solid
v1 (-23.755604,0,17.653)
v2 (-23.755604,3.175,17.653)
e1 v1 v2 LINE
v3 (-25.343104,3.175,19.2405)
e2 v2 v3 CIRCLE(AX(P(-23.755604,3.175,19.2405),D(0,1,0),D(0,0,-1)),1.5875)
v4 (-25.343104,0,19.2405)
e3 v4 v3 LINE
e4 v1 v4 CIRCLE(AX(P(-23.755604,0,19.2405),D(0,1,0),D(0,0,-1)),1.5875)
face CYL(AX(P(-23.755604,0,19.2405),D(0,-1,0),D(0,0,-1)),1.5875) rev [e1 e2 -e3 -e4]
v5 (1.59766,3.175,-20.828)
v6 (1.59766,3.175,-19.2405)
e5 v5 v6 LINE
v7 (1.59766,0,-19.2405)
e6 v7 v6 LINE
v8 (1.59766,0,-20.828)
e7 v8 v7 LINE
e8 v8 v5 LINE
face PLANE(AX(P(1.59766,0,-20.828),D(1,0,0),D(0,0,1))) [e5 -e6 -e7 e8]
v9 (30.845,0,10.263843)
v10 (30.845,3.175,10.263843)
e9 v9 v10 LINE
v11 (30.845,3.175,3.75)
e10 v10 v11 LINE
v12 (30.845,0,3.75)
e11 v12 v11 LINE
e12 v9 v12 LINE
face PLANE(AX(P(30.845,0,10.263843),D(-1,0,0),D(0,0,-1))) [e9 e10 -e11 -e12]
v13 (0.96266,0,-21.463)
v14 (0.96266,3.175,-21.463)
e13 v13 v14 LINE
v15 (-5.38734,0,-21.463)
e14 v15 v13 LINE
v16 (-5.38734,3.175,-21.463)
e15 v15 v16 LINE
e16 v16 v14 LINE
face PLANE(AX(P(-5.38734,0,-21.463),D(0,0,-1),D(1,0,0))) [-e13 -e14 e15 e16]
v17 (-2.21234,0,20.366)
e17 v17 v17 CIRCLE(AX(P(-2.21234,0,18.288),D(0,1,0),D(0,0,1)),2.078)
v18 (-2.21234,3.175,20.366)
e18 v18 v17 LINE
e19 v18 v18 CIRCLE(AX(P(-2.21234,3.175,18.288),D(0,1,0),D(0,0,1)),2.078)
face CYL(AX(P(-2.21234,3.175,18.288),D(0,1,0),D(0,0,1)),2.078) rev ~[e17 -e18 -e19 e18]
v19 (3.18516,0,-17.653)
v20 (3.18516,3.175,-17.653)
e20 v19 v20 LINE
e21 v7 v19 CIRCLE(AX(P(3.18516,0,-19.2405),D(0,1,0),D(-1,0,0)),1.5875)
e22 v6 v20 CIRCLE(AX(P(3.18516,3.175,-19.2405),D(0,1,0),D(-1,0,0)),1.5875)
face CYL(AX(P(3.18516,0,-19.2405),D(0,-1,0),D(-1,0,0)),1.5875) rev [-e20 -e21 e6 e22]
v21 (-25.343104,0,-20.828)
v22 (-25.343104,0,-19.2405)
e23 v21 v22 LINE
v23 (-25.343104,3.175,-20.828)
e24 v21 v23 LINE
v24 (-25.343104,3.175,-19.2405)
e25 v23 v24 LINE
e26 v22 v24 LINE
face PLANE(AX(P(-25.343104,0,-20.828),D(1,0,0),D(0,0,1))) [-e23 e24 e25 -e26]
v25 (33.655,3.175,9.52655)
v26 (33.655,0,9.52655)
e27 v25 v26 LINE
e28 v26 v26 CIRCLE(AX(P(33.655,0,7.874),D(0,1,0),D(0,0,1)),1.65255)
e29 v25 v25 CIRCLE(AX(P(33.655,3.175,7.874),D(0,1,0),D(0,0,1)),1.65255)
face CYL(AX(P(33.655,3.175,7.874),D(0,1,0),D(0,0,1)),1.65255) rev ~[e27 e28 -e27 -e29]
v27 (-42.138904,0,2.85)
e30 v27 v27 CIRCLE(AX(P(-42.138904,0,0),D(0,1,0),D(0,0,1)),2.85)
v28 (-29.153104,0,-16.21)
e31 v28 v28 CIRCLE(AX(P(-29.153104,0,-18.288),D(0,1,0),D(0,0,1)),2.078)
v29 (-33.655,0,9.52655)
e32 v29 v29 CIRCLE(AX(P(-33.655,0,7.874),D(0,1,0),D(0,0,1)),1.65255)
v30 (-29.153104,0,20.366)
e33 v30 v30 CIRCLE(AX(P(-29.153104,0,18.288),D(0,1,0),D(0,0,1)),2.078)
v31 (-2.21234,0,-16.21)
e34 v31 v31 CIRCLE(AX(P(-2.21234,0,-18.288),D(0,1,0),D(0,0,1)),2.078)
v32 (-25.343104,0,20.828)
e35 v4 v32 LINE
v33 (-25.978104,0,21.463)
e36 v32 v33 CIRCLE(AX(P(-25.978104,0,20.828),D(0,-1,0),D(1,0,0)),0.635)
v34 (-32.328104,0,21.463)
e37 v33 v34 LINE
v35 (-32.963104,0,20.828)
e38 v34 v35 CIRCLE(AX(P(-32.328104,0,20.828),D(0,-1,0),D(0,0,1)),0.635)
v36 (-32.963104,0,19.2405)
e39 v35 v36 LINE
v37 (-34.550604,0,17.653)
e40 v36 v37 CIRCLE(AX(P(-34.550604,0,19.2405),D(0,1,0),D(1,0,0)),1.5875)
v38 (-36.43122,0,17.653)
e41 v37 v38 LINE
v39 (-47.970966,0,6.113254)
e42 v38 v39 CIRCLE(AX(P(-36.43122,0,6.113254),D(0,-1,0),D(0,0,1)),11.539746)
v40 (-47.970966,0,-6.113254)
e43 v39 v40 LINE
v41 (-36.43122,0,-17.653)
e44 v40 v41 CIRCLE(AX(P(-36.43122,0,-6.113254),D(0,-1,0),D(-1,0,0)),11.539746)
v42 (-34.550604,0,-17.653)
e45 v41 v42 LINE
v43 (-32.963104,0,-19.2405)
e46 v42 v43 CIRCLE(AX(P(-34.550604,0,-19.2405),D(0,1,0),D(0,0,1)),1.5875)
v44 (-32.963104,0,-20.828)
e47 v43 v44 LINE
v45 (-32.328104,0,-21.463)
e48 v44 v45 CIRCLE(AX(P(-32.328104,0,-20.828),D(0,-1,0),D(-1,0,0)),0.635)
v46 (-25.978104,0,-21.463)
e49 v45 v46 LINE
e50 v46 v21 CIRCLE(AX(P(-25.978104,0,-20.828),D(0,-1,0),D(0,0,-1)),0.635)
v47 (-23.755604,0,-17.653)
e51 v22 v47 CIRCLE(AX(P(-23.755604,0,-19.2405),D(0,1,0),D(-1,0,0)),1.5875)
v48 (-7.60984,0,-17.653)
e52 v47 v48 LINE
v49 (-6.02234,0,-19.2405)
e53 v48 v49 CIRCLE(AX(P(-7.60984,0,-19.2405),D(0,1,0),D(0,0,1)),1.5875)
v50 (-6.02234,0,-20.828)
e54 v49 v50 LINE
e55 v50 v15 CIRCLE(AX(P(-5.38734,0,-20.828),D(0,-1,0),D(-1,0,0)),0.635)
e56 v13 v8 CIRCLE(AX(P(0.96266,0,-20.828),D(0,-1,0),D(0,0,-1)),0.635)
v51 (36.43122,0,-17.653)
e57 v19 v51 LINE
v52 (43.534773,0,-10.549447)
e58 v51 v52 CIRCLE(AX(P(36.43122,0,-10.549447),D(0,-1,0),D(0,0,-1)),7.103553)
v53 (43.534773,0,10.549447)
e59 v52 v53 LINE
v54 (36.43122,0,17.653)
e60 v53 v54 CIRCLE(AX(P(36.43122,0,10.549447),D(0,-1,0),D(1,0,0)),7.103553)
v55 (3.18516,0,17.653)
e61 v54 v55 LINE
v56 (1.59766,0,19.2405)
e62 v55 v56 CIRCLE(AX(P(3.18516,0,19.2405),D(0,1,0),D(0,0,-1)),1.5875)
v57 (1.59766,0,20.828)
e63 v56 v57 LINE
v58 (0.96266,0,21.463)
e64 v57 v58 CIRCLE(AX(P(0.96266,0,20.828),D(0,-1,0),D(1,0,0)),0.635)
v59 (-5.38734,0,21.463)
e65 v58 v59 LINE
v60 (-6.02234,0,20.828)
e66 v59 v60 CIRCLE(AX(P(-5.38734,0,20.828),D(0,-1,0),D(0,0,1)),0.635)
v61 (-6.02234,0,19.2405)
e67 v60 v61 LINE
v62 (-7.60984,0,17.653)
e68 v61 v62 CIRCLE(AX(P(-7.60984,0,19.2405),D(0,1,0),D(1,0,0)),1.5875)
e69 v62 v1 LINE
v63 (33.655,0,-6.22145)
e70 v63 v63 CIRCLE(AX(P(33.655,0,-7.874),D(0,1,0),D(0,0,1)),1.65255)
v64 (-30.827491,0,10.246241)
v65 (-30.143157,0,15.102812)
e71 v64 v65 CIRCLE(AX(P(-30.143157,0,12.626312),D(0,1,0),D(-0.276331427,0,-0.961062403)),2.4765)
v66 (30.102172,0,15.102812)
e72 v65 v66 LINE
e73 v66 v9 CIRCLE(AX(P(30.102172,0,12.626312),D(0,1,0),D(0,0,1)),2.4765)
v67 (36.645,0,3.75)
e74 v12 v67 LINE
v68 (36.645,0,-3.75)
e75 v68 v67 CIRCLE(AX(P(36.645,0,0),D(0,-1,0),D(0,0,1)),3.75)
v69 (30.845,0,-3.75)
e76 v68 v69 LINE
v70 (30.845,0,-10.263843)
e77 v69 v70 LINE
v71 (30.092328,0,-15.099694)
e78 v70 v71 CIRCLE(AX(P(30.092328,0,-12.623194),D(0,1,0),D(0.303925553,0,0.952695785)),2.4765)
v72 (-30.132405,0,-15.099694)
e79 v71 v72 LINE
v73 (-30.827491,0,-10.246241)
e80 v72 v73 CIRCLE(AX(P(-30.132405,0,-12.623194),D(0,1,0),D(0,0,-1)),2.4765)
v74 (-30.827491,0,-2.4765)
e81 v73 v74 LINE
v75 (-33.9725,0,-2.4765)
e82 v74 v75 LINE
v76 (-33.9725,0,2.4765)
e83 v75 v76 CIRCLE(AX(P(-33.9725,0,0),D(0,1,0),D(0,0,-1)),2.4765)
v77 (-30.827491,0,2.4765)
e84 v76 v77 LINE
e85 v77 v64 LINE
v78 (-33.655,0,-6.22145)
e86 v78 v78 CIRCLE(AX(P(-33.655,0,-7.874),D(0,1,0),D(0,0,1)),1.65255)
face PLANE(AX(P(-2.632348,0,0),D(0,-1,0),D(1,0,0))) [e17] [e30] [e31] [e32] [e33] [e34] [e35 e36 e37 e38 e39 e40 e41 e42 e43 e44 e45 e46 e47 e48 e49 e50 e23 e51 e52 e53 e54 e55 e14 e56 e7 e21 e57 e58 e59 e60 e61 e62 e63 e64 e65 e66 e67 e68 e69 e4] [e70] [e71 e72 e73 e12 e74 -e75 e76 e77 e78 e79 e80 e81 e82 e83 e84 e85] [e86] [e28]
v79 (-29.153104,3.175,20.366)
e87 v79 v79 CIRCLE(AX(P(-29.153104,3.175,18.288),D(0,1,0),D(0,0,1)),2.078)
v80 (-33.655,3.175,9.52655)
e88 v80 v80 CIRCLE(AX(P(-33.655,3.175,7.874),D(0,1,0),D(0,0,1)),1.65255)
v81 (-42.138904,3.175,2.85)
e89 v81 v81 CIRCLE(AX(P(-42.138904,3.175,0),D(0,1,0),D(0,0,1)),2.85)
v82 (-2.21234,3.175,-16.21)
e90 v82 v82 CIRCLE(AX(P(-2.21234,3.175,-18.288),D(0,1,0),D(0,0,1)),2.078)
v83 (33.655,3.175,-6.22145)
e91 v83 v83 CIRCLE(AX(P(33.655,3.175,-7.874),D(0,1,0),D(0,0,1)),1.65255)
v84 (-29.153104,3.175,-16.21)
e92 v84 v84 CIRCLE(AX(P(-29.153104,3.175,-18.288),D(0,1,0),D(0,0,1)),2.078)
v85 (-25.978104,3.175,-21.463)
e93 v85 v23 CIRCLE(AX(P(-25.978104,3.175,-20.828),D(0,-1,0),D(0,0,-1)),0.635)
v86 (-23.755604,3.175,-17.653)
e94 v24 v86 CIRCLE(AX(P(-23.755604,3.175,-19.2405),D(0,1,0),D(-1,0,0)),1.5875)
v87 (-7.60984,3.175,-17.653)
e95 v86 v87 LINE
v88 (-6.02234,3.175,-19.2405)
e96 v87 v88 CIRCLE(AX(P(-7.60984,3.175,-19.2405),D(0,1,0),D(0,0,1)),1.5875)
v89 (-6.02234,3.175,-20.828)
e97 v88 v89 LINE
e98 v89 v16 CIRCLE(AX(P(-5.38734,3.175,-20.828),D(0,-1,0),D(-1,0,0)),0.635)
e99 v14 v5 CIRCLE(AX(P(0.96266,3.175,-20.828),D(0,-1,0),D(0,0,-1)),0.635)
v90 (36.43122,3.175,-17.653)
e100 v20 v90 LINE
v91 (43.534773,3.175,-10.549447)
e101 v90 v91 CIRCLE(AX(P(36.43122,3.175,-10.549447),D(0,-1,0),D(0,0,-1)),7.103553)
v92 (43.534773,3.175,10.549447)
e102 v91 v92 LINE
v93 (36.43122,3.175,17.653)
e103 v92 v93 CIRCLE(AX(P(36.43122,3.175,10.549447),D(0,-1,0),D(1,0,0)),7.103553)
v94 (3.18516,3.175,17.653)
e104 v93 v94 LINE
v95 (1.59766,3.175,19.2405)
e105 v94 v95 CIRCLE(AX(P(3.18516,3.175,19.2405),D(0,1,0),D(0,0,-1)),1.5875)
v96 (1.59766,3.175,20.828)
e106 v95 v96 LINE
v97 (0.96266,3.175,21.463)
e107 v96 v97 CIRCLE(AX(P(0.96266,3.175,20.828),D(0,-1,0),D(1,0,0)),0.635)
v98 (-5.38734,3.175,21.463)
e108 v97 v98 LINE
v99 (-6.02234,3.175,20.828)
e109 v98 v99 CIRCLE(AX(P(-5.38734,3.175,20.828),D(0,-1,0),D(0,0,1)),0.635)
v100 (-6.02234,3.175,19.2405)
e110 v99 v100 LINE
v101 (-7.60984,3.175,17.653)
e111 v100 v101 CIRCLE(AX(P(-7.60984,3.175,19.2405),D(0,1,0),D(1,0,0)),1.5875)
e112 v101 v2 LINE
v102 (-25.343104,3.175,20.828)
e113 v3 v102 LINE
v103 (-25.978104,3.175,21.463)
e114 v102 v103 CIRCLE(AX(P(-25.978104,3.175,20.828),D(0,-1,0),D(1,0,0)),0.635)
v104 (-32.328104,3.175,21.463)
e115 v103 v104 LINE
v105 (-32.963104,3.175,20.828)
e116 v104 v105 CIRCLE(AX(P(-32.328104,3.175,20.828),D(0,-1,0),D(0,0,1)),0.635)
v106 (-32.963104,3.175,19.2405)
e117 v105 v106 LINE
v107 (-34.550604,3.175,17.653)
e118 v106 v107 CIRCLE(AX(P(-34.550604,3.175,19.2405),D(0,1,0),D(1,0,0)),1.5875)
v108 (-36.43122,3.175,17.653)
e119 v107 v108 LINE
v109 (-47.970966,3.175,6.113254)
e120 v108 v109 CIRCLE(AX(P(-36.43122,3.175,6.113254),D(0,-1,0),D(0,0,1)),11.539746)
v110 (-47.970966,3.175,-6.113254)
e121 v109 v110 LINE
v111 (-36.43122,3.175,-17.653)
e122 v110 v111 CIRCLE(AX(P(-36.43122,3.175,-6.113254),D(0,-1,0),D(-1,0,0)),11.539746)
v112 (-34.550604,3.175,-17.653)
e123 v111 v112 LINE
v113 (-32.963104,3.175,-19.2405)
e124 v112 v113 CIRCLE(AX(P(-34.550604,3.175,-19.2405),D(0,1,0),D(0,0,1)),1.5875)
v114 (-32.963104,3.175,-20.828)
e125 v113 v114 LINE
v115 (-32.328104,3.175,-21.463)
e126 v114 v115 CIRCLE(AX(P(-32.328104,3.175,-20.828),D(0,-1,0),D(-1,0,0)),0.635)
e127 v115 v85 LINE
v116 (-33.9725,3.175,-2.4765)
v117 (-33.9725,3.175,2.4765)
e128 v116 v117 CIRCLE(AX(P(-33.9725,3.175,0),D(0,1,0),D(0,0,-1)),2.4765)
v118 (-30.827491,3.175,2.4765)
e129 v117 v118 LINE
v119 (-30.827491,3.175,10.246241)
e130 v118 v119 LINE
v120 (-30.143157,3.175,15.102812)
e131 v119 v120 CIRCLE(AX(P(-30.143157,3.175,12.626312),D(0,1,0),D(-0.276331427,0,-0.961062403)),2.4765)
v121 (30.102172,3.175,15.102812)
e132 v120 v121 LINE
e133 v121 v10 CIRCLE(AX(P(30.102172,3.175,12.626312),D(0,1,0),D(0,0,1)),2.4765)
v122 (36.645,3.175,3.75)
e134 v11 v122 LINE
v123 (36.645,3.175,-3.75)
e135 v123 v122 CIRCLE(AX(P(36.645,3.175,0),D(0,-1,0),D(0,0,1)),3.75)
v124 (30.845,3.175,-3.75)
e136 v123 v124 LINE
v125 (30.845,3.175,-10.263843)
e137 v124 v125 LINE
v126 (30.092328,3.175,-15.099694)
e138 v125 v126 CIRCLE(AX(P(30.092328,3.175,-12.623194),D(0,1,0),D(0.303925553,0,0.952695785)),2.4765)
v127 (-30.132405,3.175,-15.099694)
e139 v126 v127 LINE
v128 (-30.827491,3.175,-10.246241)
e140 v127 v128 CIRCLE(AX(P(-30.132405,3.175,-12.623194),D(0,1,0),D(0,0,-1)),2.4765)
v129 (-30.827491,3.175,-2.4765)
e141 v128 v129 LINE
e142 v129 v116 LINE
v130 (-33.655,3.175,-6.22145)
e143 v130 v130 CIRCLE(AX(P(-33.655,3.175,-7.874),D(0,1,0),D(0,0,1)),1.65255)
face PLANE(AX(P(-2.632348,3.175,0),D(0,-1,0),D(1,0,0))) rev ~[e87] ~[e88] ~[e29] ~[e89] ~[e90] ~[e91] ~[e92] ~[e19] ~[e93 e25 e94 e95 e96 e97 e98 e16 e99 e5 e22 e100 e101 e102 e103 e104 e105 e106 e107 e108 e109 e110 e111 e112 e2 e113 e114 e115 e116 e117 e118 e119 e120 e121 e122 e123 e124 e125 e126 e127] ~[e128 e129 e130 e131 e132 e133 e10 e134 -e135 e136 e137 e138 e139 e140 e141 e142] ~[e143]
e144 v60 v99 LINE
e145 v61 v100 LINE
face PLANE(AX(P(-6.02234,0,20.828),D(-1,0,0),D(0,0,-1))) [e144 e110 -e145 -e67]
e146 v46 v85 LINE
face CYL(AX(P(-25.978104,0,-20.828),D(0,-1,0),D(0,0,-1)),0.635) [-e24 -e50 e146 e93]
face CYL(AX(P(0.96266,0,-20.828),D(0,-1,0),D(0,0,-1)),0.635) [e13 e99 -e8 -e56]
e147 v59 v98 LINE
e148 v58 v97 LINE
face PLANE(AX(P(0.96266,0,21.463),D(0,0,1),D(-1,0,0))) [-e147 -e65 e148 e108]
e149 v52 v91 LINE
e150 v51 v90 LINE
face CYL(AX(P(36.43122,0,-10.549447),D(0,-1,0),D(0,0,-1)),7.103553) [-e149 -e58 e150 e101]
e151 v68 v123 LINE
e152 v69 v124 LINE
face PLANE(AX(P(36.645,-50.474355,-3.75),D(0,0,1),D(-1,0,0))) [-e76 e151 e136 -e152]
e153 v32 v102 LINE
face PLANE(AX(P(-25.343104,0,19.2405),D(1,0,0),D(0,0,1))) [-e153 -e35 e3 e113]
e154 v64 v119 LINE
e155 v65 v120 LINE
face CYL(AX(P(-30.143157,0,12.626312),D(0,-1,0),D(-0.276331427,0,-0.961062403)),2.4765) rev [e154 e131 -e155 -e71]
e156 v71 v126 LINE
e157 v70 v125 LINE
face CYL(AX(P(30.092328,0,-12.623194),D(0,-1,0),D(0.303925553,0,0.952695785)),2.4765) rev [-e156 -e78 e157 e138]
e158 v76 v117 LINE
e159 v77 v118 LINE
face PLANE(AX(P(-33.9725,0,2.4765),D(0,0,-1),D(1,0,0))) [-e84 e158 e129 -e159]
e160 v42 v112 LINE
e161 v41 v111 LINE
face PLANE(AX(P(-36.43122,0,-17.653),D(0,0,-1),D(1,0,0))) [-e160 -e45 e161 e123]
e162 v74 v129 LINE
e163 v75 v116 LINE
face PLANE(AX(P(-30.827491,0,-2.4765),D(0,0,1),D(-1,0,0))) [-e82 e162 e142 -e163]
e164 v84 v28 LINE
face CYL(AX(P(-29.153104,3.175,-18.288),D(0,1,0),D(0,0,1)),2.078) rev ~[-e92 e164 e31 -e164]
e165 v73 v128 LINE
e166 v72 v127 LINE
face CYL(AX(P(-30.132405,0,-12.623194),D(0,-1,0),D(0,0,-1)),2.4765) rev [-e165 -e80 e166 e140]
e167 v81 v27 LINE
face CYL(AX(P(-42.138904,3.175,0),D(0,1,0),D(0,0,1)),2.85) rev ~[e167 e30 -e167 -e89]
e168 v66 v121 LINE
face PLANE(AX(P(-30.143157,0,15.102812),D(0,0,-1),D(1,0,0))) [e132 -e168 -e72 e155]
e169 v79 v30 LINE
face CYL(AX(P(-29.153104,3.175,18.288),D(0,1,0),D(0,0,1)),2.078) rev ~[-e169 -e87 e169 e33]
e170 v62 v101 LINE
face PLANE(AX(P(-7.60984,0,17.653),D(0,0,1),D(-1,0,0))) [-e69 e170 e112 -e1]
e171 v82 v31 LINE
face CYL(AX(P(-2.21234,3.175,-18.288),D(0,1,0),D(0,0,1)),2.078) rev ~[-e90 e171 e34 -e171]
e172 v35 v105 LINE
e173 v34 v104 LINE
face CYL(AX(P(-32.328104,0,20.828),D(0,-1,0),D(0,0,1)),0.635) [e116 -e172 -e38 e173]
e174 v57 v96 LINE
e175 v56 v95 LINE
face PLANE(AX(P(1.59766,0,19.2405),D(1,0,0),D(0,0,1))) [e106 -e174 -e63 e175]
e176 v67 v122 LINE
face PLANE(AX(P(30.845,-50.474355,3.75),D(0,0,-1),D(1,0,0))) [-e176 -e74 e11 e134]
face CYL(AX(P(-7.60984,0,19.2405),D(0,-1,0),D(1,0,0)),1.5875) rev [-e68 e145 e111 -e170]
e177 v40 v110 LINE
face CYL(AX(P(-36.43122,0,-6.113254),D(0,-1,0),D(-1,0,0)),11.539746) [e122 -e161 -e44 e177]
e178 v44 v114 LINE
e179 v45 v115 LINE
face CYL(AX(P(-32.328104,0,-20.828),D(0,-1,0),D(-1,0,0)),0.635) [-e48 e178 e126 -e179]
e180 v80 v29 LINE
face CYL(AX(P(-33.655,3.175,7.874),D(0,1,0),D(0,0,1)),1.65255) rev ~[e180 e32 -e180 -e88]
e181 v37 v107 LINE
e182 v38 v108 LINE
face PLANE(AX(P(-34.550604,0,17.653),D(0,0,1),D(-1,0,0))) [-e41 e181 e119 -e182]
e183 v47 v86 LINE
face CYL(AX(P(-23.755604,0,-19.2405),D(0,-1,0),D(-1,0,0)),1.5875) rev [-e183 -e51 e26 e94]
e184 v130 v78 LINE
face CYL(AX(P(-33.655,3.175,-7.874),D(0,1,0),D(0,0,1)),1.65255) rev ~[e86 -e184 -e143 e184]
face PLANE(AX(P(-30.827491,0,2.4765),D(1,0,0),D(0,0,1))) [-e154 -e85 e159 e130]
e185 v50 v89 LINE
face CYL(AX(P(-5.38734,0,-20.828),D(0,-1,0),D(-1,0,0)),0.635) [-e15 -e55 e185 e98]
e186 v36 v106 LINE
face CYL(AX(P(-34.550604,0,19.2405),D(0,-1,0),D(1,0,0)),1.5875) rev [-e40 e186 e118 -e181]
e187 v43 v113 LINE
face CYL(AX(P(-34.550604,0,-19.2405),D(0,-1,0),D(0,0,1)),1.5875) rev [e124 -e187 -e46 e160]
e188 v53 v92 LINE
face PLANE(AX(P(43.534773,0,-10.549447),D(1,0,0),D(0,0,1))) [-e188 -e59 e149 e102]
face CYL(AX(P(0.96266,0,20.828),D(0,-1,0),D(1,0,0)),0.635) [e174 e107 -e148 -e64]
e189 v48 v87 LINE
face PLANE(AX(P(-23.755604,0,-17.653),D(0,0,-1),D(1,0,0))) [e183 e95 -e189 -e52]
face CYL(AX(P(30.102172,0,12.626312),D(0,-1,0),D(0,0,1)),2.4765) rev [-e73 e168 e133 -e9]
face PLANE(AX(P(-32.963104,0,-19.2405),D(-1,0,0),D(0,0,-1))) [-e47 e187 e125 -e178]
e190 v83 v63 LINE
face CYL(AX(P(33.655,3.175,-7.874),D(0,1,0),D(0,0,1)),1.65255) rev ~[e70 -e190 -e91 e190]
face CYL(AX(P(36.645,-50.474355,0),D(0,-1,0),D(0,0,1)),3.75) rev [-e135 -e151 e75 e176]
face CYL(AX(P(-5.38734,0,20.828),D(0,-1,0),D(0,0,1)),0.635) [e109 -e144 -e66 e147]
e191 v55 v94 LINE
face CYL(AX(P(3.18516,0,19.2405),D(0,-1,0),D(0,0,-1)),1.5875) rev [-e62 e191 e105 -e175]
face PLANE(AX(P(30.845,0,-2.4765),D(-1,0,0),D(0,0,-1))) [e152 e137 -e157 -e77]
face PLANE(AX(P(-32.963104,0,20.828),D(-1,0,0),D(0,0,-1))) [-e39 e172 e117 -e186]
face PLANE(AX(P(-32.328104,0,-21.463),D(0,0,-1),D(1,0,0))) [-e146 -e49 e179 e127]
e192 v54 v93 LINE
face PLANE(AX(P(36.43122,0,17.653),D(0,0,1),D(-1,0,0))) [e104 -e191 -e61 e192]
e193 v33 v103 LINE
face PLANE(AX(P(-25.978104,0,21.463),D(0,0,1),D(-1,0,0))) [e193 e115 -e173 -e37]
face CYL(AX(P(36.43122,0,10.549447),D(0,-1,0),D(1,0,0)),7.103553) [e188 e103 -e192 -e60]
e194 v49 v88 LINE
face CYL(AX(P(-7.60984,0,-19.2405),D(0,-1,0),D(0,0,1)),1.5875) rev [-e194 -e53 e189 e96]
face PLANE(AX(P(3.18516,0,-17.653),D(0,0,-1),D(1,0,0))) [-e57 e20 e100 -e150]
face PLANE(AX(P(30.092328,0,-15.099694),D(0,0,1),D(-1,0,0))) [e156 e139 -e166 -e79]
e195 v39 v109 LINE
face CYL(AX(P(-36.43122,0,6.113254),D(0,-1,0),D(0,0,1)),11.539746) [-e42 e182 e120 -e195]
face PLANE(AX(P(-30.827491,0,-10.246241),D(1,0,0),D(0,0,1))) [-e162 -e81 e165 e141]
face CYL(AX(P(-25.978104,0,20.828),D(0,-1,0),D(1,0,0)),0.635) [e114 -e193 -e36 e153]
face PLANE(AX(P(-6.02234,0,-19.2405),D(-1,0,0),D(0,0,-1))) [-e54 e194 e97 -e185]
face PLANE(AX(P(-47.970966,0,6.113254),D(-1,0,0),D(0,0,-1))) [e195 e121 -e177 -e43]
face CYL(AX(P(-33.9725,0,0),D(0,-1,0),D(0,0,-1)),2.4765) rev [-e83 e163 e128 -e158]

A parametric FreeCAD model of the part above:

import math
import FreeCAD as App
import Part
import Sketcher
Q = App.Units.Quantity

doc = App.newDocument("Part")
body = doc.addObject("PartDesign::Body", "Body")

sketch1 = body.newObject("Sketcher::SketchObject", "Sketch")
sketch1.AttachmentSupport = (doc.getObject("XZ_Plane"), [""])
sketch1.MapMode = "FlatFace"
sketch1.addGeometry(Part.LineSegment(App.Vector(-6, -19.2, 0), App.Vector(-6, -20.8, 0)), False)
sketch1.addGeometry(Part.ArcOfCircle(Part.Circle(App.Vector(-5.4, -20.8, 0), App.Vector(0, 0, 1), 0.6), math.radians(180), math.radians(270)), False)
sketch1.addGeometry(Part.LineSegment(App.Vector(-5.4, -21.5, 0), App.Vector(1, -21.5, 0)), False)
sketch1.addGeometry(Part.ArcOfCircle(Part.Circle(App.Vector(1, -20.8, 0), App.Vector(0, 0, 1), 0.6), math.radians(-90), math.radians(0)), False)
sketch1.addGeometry(Part.LineSegment(App.Vector(1.6, -20.8, 0), App.Vector(1.6, -19.2, 0)), False)
sketch1.addGeometry(Part.ArcOfCircle(Part.Circle(App.Vector(3.2, -19.2, 0), App.Vector(0, 0, 1), 1.6), math.radians(90), math.radians(180)), False)
sketch1.addGeometry(Part.LineSegment(App.Vector(3.2, -17.7, 0), App.Vector(36.4, -17.7, 0)), False)
sketch1.addGeometry(Part.ArcOfCircle(Part.Circle(App.Vector(36.4, -10.5, 0), App.Vector(0, 0, 1), 7.1), math.radians(-90), math.radians(0)), False)
sketch1.addGeometry(Part.LineSegment(App.Vector(43.5, -10.5, 0), App.Vector(43.5, 10.5, 0)), False)
sketch1.addGeometry(Part.ArcOfCircle(Part.Circle(App.Vector(36.4, 10.5, 0), App.Vector(0, 0, 1), 7.1), math.radians(0), math.radians(90)), False)
sketch1.addGeometry(Part.LineSegment(App.Vector(36.4, 17.7, 0), App.Vector(3.2, 17.7, 0)), False)
sketch1.addGeometry(Part.ArcOfCircle(Part.Circle(App.Vector(3.2, 19.2, 0), App.Vector(0, 0, 1), 1.6), math.radians(180), math.radians(270)), False)
sketch1.addGeometry(Part.LineSegment(App.Vector(1.6, 19.2, 0), App.Vector(1.6, 20.8, 0)), False)
sketch1.addGeometry(Part.ArcOfCircle(Part.Circle(App.Vector(1, 20.8, 0), App.Vector(0, 0, 1), 0.6), math.radians(0), math.radians(90)), False)
sketch1.addGeometry(Part.LineSegment(App.Vector(1, 21.5, 0), App.Vector(-5.4, 21.5, 0)), False)
sketch1.addGeometry(Part.ArcOfCircle(Part.Circle(App.Vector(-5.4, 20.8, 0), App.Vector(0, 0, 1), 0.6), math.radians(90), math.radians(180)), False)
sketch1.addGeometry(Part.LineSegment(App.Vector(-6, 20.8, 0), App.Vector(-6, 19.2, 0)), False)
sketch1.addGeometry(Part.ArcOfCircle(Part.Circle(App.Vector(-7.6, 19.2, 0), App.Vector(0, 0, 1), 1.6), math.radians(-90), math.radians(0)), False)
sketch1.addGeometry(Part.LineSegment(App.Vector(-7.6, 17.7, 0), App.Vector(-23.8, 17.7, 0)), False)
sketch1.addGeometry(Part.ArcOfCircle(Part.Circle(App.Vector(-23.8, 19.2, 0), App.Vector(0, 0, 1), 1.6), math.radians(180), math.radians(270)), False)
sketch1.addGeometry(Part.LineSegment(App.Vector(-25.3, 19.2, 0), App.Vector(-25.3, 20.8, 0)), False)
sketch1.addGeometry(Part.ArcOfCircle(Part.Circle(App.Vector(-26, 20.8, 0), App.Vector(0, 0, 1), 0.6), math.radians(0), math.radians(90)), False)
sketch1.addGeometry(Part.LineSegment(App.Vector(-26, 21.5, 0), App.Vector(-32.3, 21.5, 0)), False)
sketch1.addGeometry(Part.ArcOfCircle(Part.Circle(App.Vector(-32.3, 20.8, 0), App.Vector(0, 0, 1), 0.6), math.radians(90), math.radians(180)), False)
sketch1.addGeometry(Part.LineSegment(App.Vector(-33, 20.8, 0), App.Vector(-33, 19.2, 0)), False)
sketch1.addGeometry(Part.ArcOfCircle(Part.Circle(App.Vector(-34.6, 19.2, 0), App.Vector(0, 0, 1), 1.6), math.radians(-90), math.radians(0)), False)
sketch1.addGeometry(Part.LineSegment(App.Vector(-34.6, 17.7, 0), App.Vector(-36.4, 17.7, 0)), False)
sketch1.addGeometry(Part.ArcOfCircle(Part.Circle(App.Vector(-36.4, 6.1, 0), App.Vector(0, 0, 1), 11.5), math.radians(90), math.radians(180)), False)
sketch1.addGeometry(Part.LineSegment(App.Vector(-48, 6.1, 0), App.Vector(-48, -6.1, 0)), False)
sketch1.addGeometry(Part.ArcOfCircle(Part.Circle(App.Vector(-36.4, -6.1, 0), App.Vector(0, 0, 1), 11.5), math.radians(-180), math.radians(-90)), False)
sketch1.addGeometry(Part.LineSegment(App.Vector(-36.4, -17.7, 0), App.Vector(-34.6, -17.7, 0)), False)
sketch1.addGeometry(Part.ArcOfCircle(Part.Circle(App.Vector(-34.6, -19.2, 0), App.Vector(0, 0, 1), 1.6), math.radians(0), math.radians(90)), False)
sketch1.addGeometry(Part.LineSegment(App.Vector(-33, -19.2, 0), App.Vector(-33, -20.8, 0)), False)
sketch1.addGeometry(Part.ArcOfCircle(Part.Circle(App.Vector(-32.3, -20.8, 0), App.Vector(0, 0, 1), 0.6), math.radians(180), math.radians(270)), False)
sketch1.addGeometry(Part.LineSegment(App.Vector(-32.3, -21.5, 0), App.Vector(-26, -21.5, 0)), False)
sketch1.addGeometry(Part.ArcOfCircle(Part.Circle(App.Vector(-26, -20.8, 0), App.Vector(0, 0, 1), 0.6), math.radians(-90), math.radians(0)), False)
sketch1.addGeometry(Part.LineSegment(App.Vector(-25.3, -20.8, 0), App.Vector(-25.3, -19.2, 0)), False)
sketch1.addGeometry(Part.ArcOfCircle(Part.Circle(App.Vector(-23.8, -19.2, 0), App.Vector(0, 0, 1), 1.6), math.radians(90), math.radians(180)), False)
sketch1.addGeometry(Part.LineSegment(App.Vector(-23.8, -17.7, 0), App.Vector(-7.6, -17.7, 0)), False)
sketch1.addGeometry(Part.ArcOfCircle(Part.Circle(App.Vector(-7.6, -19.2, 0), App.Vector(0, 0, 1), 1.6), math.radians(0), math.radians(90)), False)
sketch1.addGeometry(Part.Circle(App.Vector(-29.2, -18.3, 0), App.Vector(0, 0, 1), 1.8), False)
sketch1.addGeometry(Part.Circle(App.Vector(-2.2, -18.3, 0), App.Vector(0, 0, 1), 1.8), False)
sketch1.addGeometry(Part.Circle(App.Vector(-33.7, -7.9, 0), App.Vector(0, 0, 1), 1.4), False)
sketch1.addGeometry(Part.Circle(App.Vector(33.7, -7.9, 0), App.Vector(0, 0, 1), 1.4), False)
sketch1.addGeometry(Part.Circle(App.Vector(-33.7, 7.9, 0), App.Vector(0, 0, 1), 1.4), False)
sketch1.addGeometry(Part.Circle(App.Vector(-29.2, 18.3, 0), App.Vector(0, 0, 1), 1.8), False)
sketch1.addGeometry(Part.Circle(App.Vector(-2.2, 18.3, 0), App.Vector(0, 0, 1), 1.8), False)
sketch1.addGeometry(Part.ArcOfCircle(Part.Circle(App.Vector(-34, 0, 0), App.Vector(0, 0, 1), 2.5), math.radians(90), math.radians(270)), False)
sketch1.addGeometry(Part.LineSegment(App.Vector(-34, 2.5, 0), App.Vector(-30.8, 2.5, 0)), False)
sketch1.addGeometry(Part.LineSegment(App.Vector(-30.8, 2.5, 0), App.Vector(-30.8, 10.2, 0)), False)
sketch1.addGeometry(Part.ArcOfCircle(Part.Circle(App.Vector(-30.1, 12.6, 0), App.Vector(0, 0, 1), 2.5), math.radians(90), math.radians(254)), False)
sketch1.addGeometry(Part.LineSegment(App.Vector(-30.1, 15.1, 0), App.Vector(30.1, 15.1, 0)), False)
sketch1.addGeometry(Part.ArcOfCircle(Part.Circle(App.Vector(30.1, 12.6, 0), App.Vector(0, 0, 1), 2.5), math.radians(-73), math.radians(90)), False)
sketch1.addGeometry(Part.LineSegment(App.Vector(30.8, 10.3, 0), App.Vector(30.8, 2.5, 0)), False)
sketch1.addGeometry(Part.LineSegment(App.Vector(30.8, 2.5, 0), App.Vector(34, 2.5, 0)), False)
sketch1.addGeometry(Part.ArcOfCircle(Part.Circle(App.Vector(34, 0, 0), App.Vector(0, 0, 1), 2.5), math.radians(-90), math.radians(90)), False)
sketch1.addGeometry(Part.LineSegment(App.Vector(34, -2.5, 0), App.Vector(30.8, -2.5, 0)), False)
sketch1.addGeometry(Part.LineSegment(App.Vector(30.8, -2.5, 0), App.Vector(30.8, -10.3, 0)), False)
sketch1.addGeometry(Part.ArcOfCircle(Part.Circle(App.Vector(30.1, -12.6, 0), App.Vector(0, 0, 1), 2.5), math.radians(-90), math.radians(72)), False)
sketch1.addGeometry(Part.LineSegment(App.Vector(30.1, -15.1, 0), App.Vector(-30.1, -15.1, 0)), False)
sketch1.addGeometry(Part.ArcOfCircle(Part.Circle(App.Vector(-30.1, -12.6, 0), App.Vector(0, 0, 1), 2.5), math.radians(106), math.radians(270)), False)
sketch1.addGeometry(Part.LineSegment(App.Vector(-30.8, -10.2, 0), App.Vector(-30.8, -2.5, 0)), False)
sketch1.addGeometry(Part.LineSegment(App.Vector(-30.8, -2.5, 0), App.Vector(-34, -2.5, 0)), False)
sketch1.addGeometry(Part.Circle(App.Vector(33.7, 7.9, 0), App.Vector(0, 0, 1), 1.4), False)
sketch1.addConstraint(Sketcher.Constraint("Tangent", 0, 2, 1, 1))
sketch1.addConstraint(Sketcher.Constraint("Tangent", 1, 2, 2, 1))
sketch1.addConstraint(Sketcher.Constraint("Tangent", 2, 2, 3, 1))
sketch1.addConstraint(Sketcher.Constraint("Tangent", 3, 2, 4, 1))
sketch1.addConstraint(Sketcher.Constraint("Tangent", 4, 2, 5, 2))
sketch1.addConstraint(Sketcher.Constraint("Tangent", 5, 1, 6, 1))
sketch1.addConstraint(Sketcher.Constraint("Tangent", 6, 2, 7, 1))
sketch1.addConstraint(Sketcher.Constraint("Tangent", 7, 2, 8, 1))
sketch1.addConstraint(Sketcher.Constraint("Tangent", 8, 2, 9, 1))
sketch1.addConstraint(Sketcher.Constraint("Tangent", 9, 2, 10, 1))
sketch1.addConstraint(Sketcher.Constraint("Tangent", 10, 2, 11, 2))
sketch1.addConstraint(Sketcher.Constraint("Tangent", 11, 1, 12, 1))
sketch1.addConstraint(Sketcher.Constraint("Tangent", 12, 2, 13, 1))
sketch1.addConstraint(Sketcher.Constraint("Tangent", 13, 2, 14, 1))
sketch1.addConstraint(Sketcher.Constraint("Tangent", 14, 2, 15, 1))
sketch1.addConstraint(Sketcher.Constraint("Tangent", 15, 2, 16, 1))
sketch1.addConstraint(Sketcher.Constraint("Tangent", 16, 2, 17, 2))
sketch1.addConstraint(Sketcher.Constraint("Tangent", 17, 1, 18, 1))
sketch1.addConstraint(Sketcher.Constraint("Tangent", 18, 2, 19, 2))
sketch1.addConstraint(Sketcher.Constraint("Tangent", 19, 1, 20, 1))
sketch1.addConstraint(Sketcher.Constraint("Tangent", 20, 2, 21, 1))
sketch1.addConstraint(Sketcher.Constraint("Tangent", 21, 2, 22, 1))
sketch1.addConstraint(Sketcher.Constraint("Tangent", 22, 2, 23, 1))
sketch1.addConstraint(Sketcher.Constraint("Tangent", 23, 2, 24, 1))
sketch1.addConstraint(Sketcher.Constraint("Tangent", 24, 2, 25, 2))
sketch1.addConstraint(Sketcher.Constraint("Tangent", 25, 1, 26, 1))
sketch1.addConstraint(Sketcher.Constraint("Tangent", 26, 2, 27, 1))
sketch1.addConstraint(Sketcher.Constraint("Tangent", 27, 2, 28, 1))
sketch1.addConstraint(Sketcher.Constraint("Tangent", 28, 2, 29, 1))
sketch1.addConstraint(Sketcher.Constraint("Tangent", 29, 2, 30, 1))
sketch1.addConstraint(Sketcher.Constraint("Tangent", 30, 2, 31, 2))
sketch1.addConstraint(Sketcher.Constraint("Tangent", 31, 1, 32, 1))
sketch1.addConstraint(Sketcher.Constraint("Tangent", 32, 2, 33, 1))
sketch1.addConstraint(Sketcher.Constraint("Tangent", 33, 2, 34, 1))
sketch1.addConstraint(Sketcher.Constraint("Tangent", 34, 2, 35, 1))
sketch1.addConstraint(Sketcher.Constraint("Tangent", 35, 2, 36, 1))
sketch1.addConstraint(Sketcher.Constraint("Tangent", 36, 2, 37, 2))
sketch1.addConstraint(Sketcher.Constraint("Tangent", 37, 1, 38, 1))
sketch1.addConstraint(Sketcher.Constraint("Tangent", 38, 2, 39, 2))
sketch1.addConstraint(Sketcher.Constraint("Tangent", 39, 1, 0, 1))
sketch1.addConstraint(Sketcher.Constraint("Tangent", 47, 1, 48, 1))
sketch1.addConstraint(Sketcher.Constraint("Coincident", 48, 2, 49, 1))
sketch1.addConstraint(Sketcher.Constraint("Coincident", 49, 2, 50, 2))
sketch1.addConstraint(Sketcher.Constraint("Tangent", 50, 1, 51, 1))
sketch1.addConstraint(Sketcher.Constraint("Tangent", 51, 2, 52, 2))
sketch1.addConstraint(Sketcher.Constraint("Coincident", 52, 1, 53, 1))
sketch1.addConstraint(Sketcher.Constraint("Coincident", 53, 2, 54, 1))
sketch1.addConstraint(Sketcher.Constraint("Tangent", 54, 2, 55, 2))
sketch1.addConstraint(Sketcher.Constraint("Tangent", 55, 1, 56, 1))
sketch1.addConstraint(Sketcher.Constraint("Coincident", 56, 2, 57, 1))
sketch1.addConstraint(Sketcher.Constraint("Coincident", 57, 2, 58, 2))
sketch1.addConstraint(Sketcher.Constraint("Tangent", 58, 1, 59, 1))
sketch1.addConstraint(Sketcher.Constraint("Tangent", 59, 2, 60, 2))
sketch1.addConstraint(Sketcher.Constraint("Coincident", 60, 1, 61, 1))
sketch1.addConstraint(Sketcher.Constraint("Coincident", 61, 2, 62, 1))
sketch1.addConstraint(Sketcher.Constraint("Tangent", 62, 2, 47, 2))
sketch1.addConstraint(Sketcher.Constraint("Vertical", 0))
sketch1.addConstraint(Sketcher.Constraint("Horizontal", 2))
sketch1.addConstraint(Sketcher.Constraint("Vertical", 4))
sketch1.addConstraint(Sketcher.Constraint("Horizontal", 6))
sketch1.addConstraint(Sketcher.Constraint("Vertical", 8))
sketch1.addConstraint(Sketcher.Constraint("Horizontal", 10))
sketch1.addConstraint(Sketcher.Constraint("Vertical", 12))
sketch1.addConstraint(Sketcher.Constraint("Horizontal", 14))
sketch1.addConstraint(Sketcher.Constraint("Vertical", 16))
sketch1.addConstraint(Sketcher.Constraint("Horizontal", 18))
sketch1.addConstraint(Sketcher.Constraint("Vertical", 20))
sketch1.addConstraint(Sketcher.Constraint("Horizontal", 22))
sketch1.addConstraint(Sketcher.Constraint("Vertical", 24))
sketch1.addConstraint(Sketcher.Constraint("Horizontal", 26))
sketch1.addConstraint(Sketcher.Constraint("Vertical", 28))
sketch1.addConstraint(Sketcher.Constraint("Horizontal", 30))
sketch1.addConstraint(Sketcher.Constraint("Vertical", 32))
sketch1.addConstraint(Sketcher.Constraint("Horizontal", 34))
sketch1.addConstraint(Sketcher.Constraint("Vertical", 36))
sketch1.addConstraint(Sketcher.Constraint("Horizontal", 38))
sketch1.addConstraint(Sketcher.Constraint("Horizontal", 48))
sketch1.addConstraint(Sketcher.Constraint("Vertical", 49))
sketch1.addConstraint(Sketcher.Constraint("Horizontal", 51))
sketch1.addConstraint(Sketcher.Constraint("Vertical", 53))
sketch1.addConstraint(Sketcher.Constraint("Horizontal", 54))
sketch1.addConstraint(Sketcher.Constraint("Horizontal", 56))
sketch1.addConstraint(Sketcher.Constraint("Vertical", 57))
sketch1.addConstraint(Sketcher.Constraint("Horizontal", 59))
sketch1.addConstraint(Sketcher.Constraint("Vertical", 61))
sketch1.addConstraint(Sketcher.Constraint("Horizontal", 62))
sketch1.addConstraint(Sketcher.Constraint("Equal", 1, 3))
sketch1.addConstraint(Sketcher.Constraint("Equal", 7, 9))
sketch1.addConstraint(Sketcher.Constraint("Equal", 5, 11))
sketch1.addConstraint(Sketcher.Constraint("Equal", 3, 13))
sketch1.addConstraint(Sketcher.Constraint("Equal", 13, 15))
sketch1.addConstraint(Sketcher.Constraint("Equal", 11, 17))
sketch1.addConstraint(Sketcher.Constraint("Equal", 17, 19))
sketch1.addConstraint(Sketcher.Constraint("Equal", 15, 21))
sketch1.addConstraint(Sketcher.Constraint("Equal", 21, 23))
sketch1.addConstraint(Sketcher.Constraint("Equal", 19, 25))
sketch1.addConstraint(Sketcher.Constraint("Equal", 27, 29))
sketch1.addConstraint(Sketcher.Constraint("Equal", 25, 31))
sketch1.addConstraint(Sketcher.Constraint("Equal", 23, 33))
sketch1.addConstraint(Sketcher.Constraint("Equal", 33, 35))
sketch1.addConstraint(Sketcher.Constraint("Equal", 31, 37))
sketch1.addConstraint(Sketcher.Constraint("Equal", 37, 39))
sketch1.addConstraint(Sketcher.Constraint("Equal", 40, 41))
sketch1.addConstraint(Sketcher.Constraint("Equal", 42, 43))
sketch1.addConstraint(Sketcher.Constraint("Equal", 43, 44))
sketch1.addConstraint(Sketcher.Constraint("Equal", 41, 45))
sketch1.addConstraint(Sketcher.Constraint("Equal", 45, 46))
sketch1.addConstraint(Sketcher.Constraint("Equal", 47, 50))
sketch1.addConstraint(Sketcher.Constraint("Equal", 50, 52))
sketch1.addConstraint(Sketcher.Constraint("Equal", 52, 55))
sketch1.addConstraint(Sketcher.Constraint("Equal", 55, 58))
sketch1.addConstraint(Sketcher.Constraint("Equal", 58, 60))
sketch1.addConstraint(Sketcher.Constraint("Equal", 44, 63))
sketch1.addConstraint(Sketcher.Constraint("Symmetric", 43, 3, 44, 3, -1, 1))
sketch1.addConstraint(Sketcher.Constraint("Symmetric", 47, 3, 55, 3, -1, 1))
sketch1.addConstraint(Sketcher.Constraint("Symmetric", 42, 3, 63, 3, -1, 1))
sketch1.addConstraint(Sketcher.Constraint("Symmetric", 6, 2, 26, 2, -1, 1))
sketch1.addConstraint(Sketcher.Constraint("Symmetric", 42, 3, 43, 3, -2))
sketch1.addConstraint(Sketcher.Constraint("Symmetric", 5, 3, 11, 3, -1))
sketch1.addConstraint(Sketcher.Constraint("Symmetric", 1, 3, 15, 3, -1))
sketch1.addConstraint(Sketcher.Constraint("Symmetric", 25, 3, 31, 3, -1))
sketch1.addConstraint(Sketcher.Constraint("Symmetric", 21, 3, 35, 3, -1))
sketch1.addConstraint(Sketcher.Constraint("Symmetric", 40, 3, 45, 3, -1))
sketch1.addConstraint(Sketcher.Constraint("Symmetric", 41, 3, 46, 3, -1))
sketch1.addConstraint(Sketcher.Constraint("Symmetric", 53, 2, 56, 2, -1))
sketch1.addConstraint(Sketcher.Constraint("Symmetric", 49, 2, 60, 1, -1))
sketch1.addConstraint(Sketcher.Constraint("Horizontal", 11, 3, 17, 3))
sketch1.addConstraint(Sketcher.Constraint("Horizontal", 15, 3, 21, 3))
sketch1.addConstraint(Sketcher.Constraint("Horizontal", 31, 3, 37, 3))
sketch1.addConstraint(Sketcher.Constraint("Horizontal", 40, 3, 41, 3))
sketch1.addConstraint(Sketcher.Constraint("Equal", 14, 22))
sketch1.addConstraint(Sketcher.Constraint("Equal", 53, 57))
sketch1.addConstraint(Sketcher.Constraint("Diameter", 40, Q("0.14 in")))
sketch1.addConstraint(Sketcher.Constraint("Radius", 1, Q("0.025 in")))
sketch1.addConstraint(Sketcher.Constraint("Radius", 5, Q("0.0625 in")))
sketch1.addConstraint(Sketcher.Constraint("Diameter", 42, Q("0.1065 in")))
sketch1.addConstraint(Sketcher.Constraint("DistanceX", 2, 1, 2, 2, Q("0.25 in")))
sketch1.addConstraint(Sketcher.Constraint("Radius", 47, Q("0.0975 in")))
sketch1.addConstraint(Sketcher.Constraint("DistanceY", 0, 2, 0, 1, Q("0.0625 in")))
sketch1.addConstraint(Sketcher.Constraint("DistanceY", 1, 3, -1, 1, Q("0.82 in")))
sketch1.addConstraint(Sketcher.Constraint("DistanceY", 40, 3, -1, 1, Q("0.72 in")))
sketch1.addConstraint(Sketcher.Constraint("DistanceY", 42, 3, -1, 1, Q("0.31 in")))
sketch1.addConstraint(Sketcher.Constraint("DistanceX", 6, 1, 6, 2, Q("1.3089 in")))
sketch1.addConstraint(Sketcher.Constraint("DistanceX", 42, 3, -1, 1, Q("1.325 in")))
sketch1.addConstraint(Sketcher.Constraint("DistanceX", 54, 1, 54, 2, Q("3.1275 mm")))
sketch1.addConstraint(Sketcher.Constraint("DistanceX", 1, 3, -1, 1, Q("0.2121 in")))
sketch1.addConstraint(Sketcher.Constraint("DistanceX", 41, 3, -1, 1, Q("0.0871 in")))
sketch1.addConstraint(Sketcher.Constraint("DistanceX", 47, 3, -1, 1, Q("1.3375 in")))
sketch1.addConstraint(Sketcher.Constraint("Radius", 7, Q("7.103553 mm")))
sketch1.addConstraint(Sketcher.Constraint("Radius", 27, Q("11.539746 mm")))
sketch1.addConstraint(Sketcher.Constraint("DistanceX", 48, 1, 48, 2, Q("3.145009 mm")))
sketch1.addConstraint(Sketcher.Constraint("DistanceX", 51, 1, 51, 2, Q("60.245329 mm")))
sketch1.addConstraint(Sketcher.Constraint("DistanceY", 49, 1, 49, 2, Q("7.769741 mm")))
sketch1.addConstraint(Sketcher.Constraint("DistanceX", 18, 2, 18, 1, Q("16.145764 mm")))
sketch1.addConstraint(Sketcher.Constraint("DistanceX", 59, 2, 59, 1, Q("60.224733 mm")))
sketch1.addConstraint(Sketcher.Constraint("DistanceY", 53, 2, 53, 1, Q("7.787343 mm")))
sketch1.addConstraint(Sketcher.Constraint("DistanceX", 40, 3, -1, 1, Q("29.153104 mm")))
pad1 = body.newObject("PartDesign::Pad", "Pad")
pad1.Profile = sketch1
pad1.Length = Q("0.125 in")
pad1.Reversed = True

sketch2 = body.newObject("Sketcher::SketchObject", "Sketch001")
sketch2.AttachmentSupport = (doc.getObject("XZ_Plane"), [""])
sketch2.MapMode = "FlatFace"
sketch2.AttachmentOffset = App.Placement(App.Vector(0, 0, -0.125 * 25.4), App.Rotation())
sketch2.addGeometry(Part.Circle(App.Vector(-42.1, 0, 0), App.Vector(0, 0, 1), 2.5), False)
sketch2.addConstraint(Sketcher.Constraint("PointOnObject", 0, 3, -1))
sketch2.addConstraint(Sketcher.Constraint("Diameter", 0, Q("5.1 mm")))
sketch2.addConstraint(Sketcher.Constraint("DistanceX", 0, 3, -1, 1, Q("42.138904 mm")))
pocket1 = body.newObject("PartDesign::Pocket", "Pocket")
pocket1.Profile = sketch2
pocket1.Type = "ThroughAll"
pocket1.Reversed = True

sketch3 = body.newObject("Sketcher::SketchObject", "Sketch002")
sketch3.AttachmentSupport = (doc.getObject("XZ_Plane"), [""])
sketch3.MapMode = "FlatFace"
sketch3.AttachmentOffset = App.Placement(App.Vector(0, 0, -0.125 * 25.4), App.Rotation())
sketch3.addGeometry(Part.LineSegment(App.Vector(30.8, 2.5, 0), App.Vector(30.8, 3.8, 0)), False)
sketch3.addGeometry(Part.LineSegment(App.Vector(30.8, 3.8, 0), App.Vector(36.6, 3.8, 0)), False)
sketch3.addGeometry(Part.ArcOfCircle(Part.Circle(App.Vector(36.6, 0, 0), App.Vector(0, 0, 1), 3.8), math.radians(-90), math.radians(90)), False)
sketch3.addGeometry(Part.LineSegment(App.Vector(36.6, -3.8, 0), App.Vector(30.8, -3.8, 0)), False)
sketch3.addGeometry(Part.LineSegment(App.Vector(30.8, -3.8, 0), App.Vector(30.8, -2.5, 0)), False)
sketch3.addGeometry(Part.LineSegment(App.Vector(30.8, -2.5, 0), App.Vector(34, -2.5, 0)), False)
sketch3.addGeometry(Part.ArcOfCircle(Part.Circle(App.Vector(34, 0, 0), App.Vector(0, 0, 1), 2.5), math.radians(-90), math.radians(90)), False)
sketch3.addGeometry(Part.LineSegment(App.Vector(34, 2.5, 0), App.Vector(30.8, 2.5, 0)), False)
sketch3.addConstraint(Sketcher.Constraint("Coincident", 0, 2, 1, 1))
sketch3.addConstraint(Sketcher.Constraint("Tangent", 1, 2, 2, 2))
sketch3.addConstraint(Sketcher.Constraint("Tangent", 2, 1, 3, 1))
sketch3.addConstraint(Sketcher.Constraint("Coincident", 3, 2, 4, 1))
sketch3.addConstraint(Sketcher.Constraint("Coincident", 4, 2, 5, 1))
sketch3.addConstraint(Sketcher.Constraint("Tangent", 5, 2, 6, 1))
sketch3.addConstraint(Sketcher.Constraint("Tangent", 6, 2, 7, 1))
sketch3.addConstraint(Sketcher.Constraint("Coincident", 7, 2, 0, 1))
sketch3.addConstraint(Sketcher.Constraint("Vertical", 0))
sketch3.addConstraint(Sketcher.Constraint("Horizontal", 1))
sketch3.addConstraint(Sketcher.Constraint("Horizontal", 3))
sketch3.addConstraint(Sketcher.Constraint("Vertical", 4))
sketch3.addConstraint(Sketcher.Constraint("Horizontal", 5))
sketch3.addConstraint(Sketcher.Constraint("Horizontal", 7))
sketch3.addConstraint(Sketcher.Constraint("Symmetric", 0, 2, 3, 2, -1))
sketch3.addConstraint(Sketcher.Constraint("PointOnObject", 6, 3, -1))
sketch3.addConstraint(Sketcher.Constraint("Radius", 6, Q("0.0975 in")))
sketch3.addConstraint(Sketcher.Constraint("Radius", 2, Q("3.75 mm")))
sketch3.addConstraint(Sketcher.Constraint("DistanceX", 1, 1, 1, 2, Q("5.8 mm")))
sketch3.addConstraint(Sketcher.Constraint("DistanceX", 5, 1, 5, 2, Q("3.1275 mm")))
sketch3.addConstraint(Sketcher.Constraint("DistanceX", -1, 1, 6, 3, Q("1.3375 in")))
pocket2 = body.newObject("PartDesign::Pocket", "Pocket001")
pocket2.Profile = sketch3
pocket2.Type = "ThroughAll"
pocket2.Midplane = True

sketch4 = body.newObject("Sketcher::SketchObject", "Sketch003")
sketch4.AttachmentSupport = (doc.getObject("XZ_Plane"), [""])
sketch4.MapMode = "FlatFace"
sketch4.AttachmentOffset = App.Placement(App.Vector(0, 0, -0.125 * 25.4), App.Rotation())
sketch4.addGeometry(Part.Circle(App.Vector(-29.2, -18.3, 0), App.Vector(0, 0, 1), 2.1), False)
sketch4.addGeometry(Part.Circle(App.Vector(-33.7, -7.9, 0), App.Vector(0, 0, 1), 1.7), False)
sketch4.addGeometry(Part.Circle(App.Vector(-42.1, 0, 0), App.Vector(0, 0, 1), 2.9), False)
sketch4.addGeometry(Part.Circle(App.Vector(-33.7, 7.9, 0), App.Vector(0, 0, 1), 1.7), False)
sketch4.addGeometry(Part.Circle(App.Vector(-29.2, 18.3, 0), App.Vector(0, 0, 1), 2.1), False)
sketch4.addGeometry(Part.Circle(App.Vector(-2.2, 18.3, 0), App.Vector(0, 0, 1), 2.1), False)
sketch4.addGeometry(Part.Circle(App.Vector(-2.2, -18.3, 0), App.Vector(0, 0, 1), 2.1), False)
sketch4.addGeometry(Part.Circle(App.Vector(33.7, -7.9, 0), App.Vector(0, 0, 1), 1.7), False)
sketch4.addGeometry(Part.Circle(App.Vector(33.7, 7.9, 0), App.Vector(0, 0, 1), 1.7), False)
sketch4.addConstraint(Sketcher.Constraint("Equal", 1, 3))
sketch4.addConstraint(Sketcher.Constraint("Equal", 0, 4))
sketch4.addConstraint(Sketcher.Constraint("Equal", 4, 5))
sketch4.addConstraint(Sketcher.Constraint("Equal", 5, 6))
sketch4.addConstraint(Sketcher.Constraint("Equal", 3, 7))
sketch4.addConstraint(Sketcher.Constraint("Equal", 7, 8))
sketch4.addConstraint(Sketcher.Constraint("Symmetric", 3, 3, 7, 3, -1, 1))
sketch4.addConstraint(Sketcher.Constraint("Symmetric", 1, 3, 8, 3, -1, 1))
sketch4.addConstraint(Sketcher.Constraint("Symmetric", 1, 3, 7, 3, -2))
sketch4.addConstraint(Sketcher.Constraint("Symmetric", 0, 3, 4, 3, -1))
sketch4.addConstraint(Sketcher.Constraint("Symmetric", 5, 3, 6, 3, -1))
sketch4.addConstraint(Sketcher.Constraint("PointOnObject", 2, 3, -1))
sketch4.addConstraint(Sketcher.Constraint("Horizontal", 4, 3, 5, 3))
sketch4.addConstraint(Sketcher.Constraint("Diameter", 0, Q("4.156 mm")))
sketch4.addConstraint(Sketcher.Constraint("Diameter", 1, Q("3.3051 mm")))
sketch4.addConstraint(Sketcher.Constraint("Diameter", 2, Q("5.7 mm")))
sketch4.addConstraint(Sketcher.Constraint("DistanceY", 0, 3, -1, 1, Q("0.72 in")))
sketch4.addConstraint(Sketcher.Constraint("DistanceY", 1, 3, -1, 1, Q("0.31 in")))
sketch4.addConstraint(Sketcher.Constraint("DistanceX", 1, 3, 7, 3, Q("2.65 in")))
sketch4.addConstraint(Sketcher.Constraint("DistanceX", 5, 3, -1, 1, Q("0.0871 in")))
sketch4.addConstraint(Sketcher.Constraint("DistanceX", 2, 3, 0, 3, Q("12.9858 mm")))
sketch4.addConstraint(Sketcher.Constraint("DistanceX", 0, 3, -1, 1, Q("29.153104 mm")))
pocket3 = body.newObject("PartDesign::Pocket", "Pocket002")
pocket3.Profile = sketch4
pocket3.Type = "ThroughAll"
pocket3.Reversed = True

doc.recompute()
